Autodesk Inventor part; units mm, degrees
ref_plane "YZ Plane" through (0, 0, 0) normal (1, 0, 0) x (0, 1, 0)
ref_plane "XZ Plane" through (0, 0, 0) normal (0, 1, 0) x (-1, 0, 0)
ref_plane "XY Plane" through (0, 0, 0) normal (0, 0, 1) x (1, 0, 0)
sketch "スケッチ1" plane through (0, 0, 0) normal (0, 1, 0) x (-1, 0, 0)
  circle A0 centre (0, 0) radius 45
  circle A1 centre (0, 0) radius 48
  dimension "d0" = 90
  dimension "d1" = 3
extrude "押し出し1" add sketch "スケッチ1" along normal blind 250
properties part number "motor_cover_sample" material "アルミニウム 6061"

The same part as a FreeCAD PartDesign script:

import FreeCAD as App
import Part
import Sketcher

V = App.Vector
Q = App.Units.Quantity

doc = App.newDocument("Part")
body = doc.addObject("PartDesign::Body", "Body")

# Sketch on XZ plane
sketch1 = body.newObject("Sketcher::SketchObject", "Sketch")
sketch1.AttachmentSupport = (doc.getObject("XZ_Plane"), [""])
sketch1.MapMode = "FlatFace"
sketch1.addGeometry([
    Part.Circle(V(0, 0, 0), V(0, 0, 1), 48),
    Part.Circle(V(0, 0, 0), V(0, 0, 1), 45),
], False)
sketch1.addConstraint([
    Sketcher.Constraint("Coincident", 0, 3, -1, 1),
    Sketcher.Constraint("Coincident", 1, 3, -1, 1),
    Sketcher.Constraint("Diameter", 1, Q("90 mm")),
    Sketcher.Constraint("Diameter", 0, Q("96 mm")),
])
pad1 = body.newObject("PartDesign::Pad", "Pad")
pad1.Profile = sketch1
pad1.Length = 250
pad1.Reversed = True

doc.recompute()
